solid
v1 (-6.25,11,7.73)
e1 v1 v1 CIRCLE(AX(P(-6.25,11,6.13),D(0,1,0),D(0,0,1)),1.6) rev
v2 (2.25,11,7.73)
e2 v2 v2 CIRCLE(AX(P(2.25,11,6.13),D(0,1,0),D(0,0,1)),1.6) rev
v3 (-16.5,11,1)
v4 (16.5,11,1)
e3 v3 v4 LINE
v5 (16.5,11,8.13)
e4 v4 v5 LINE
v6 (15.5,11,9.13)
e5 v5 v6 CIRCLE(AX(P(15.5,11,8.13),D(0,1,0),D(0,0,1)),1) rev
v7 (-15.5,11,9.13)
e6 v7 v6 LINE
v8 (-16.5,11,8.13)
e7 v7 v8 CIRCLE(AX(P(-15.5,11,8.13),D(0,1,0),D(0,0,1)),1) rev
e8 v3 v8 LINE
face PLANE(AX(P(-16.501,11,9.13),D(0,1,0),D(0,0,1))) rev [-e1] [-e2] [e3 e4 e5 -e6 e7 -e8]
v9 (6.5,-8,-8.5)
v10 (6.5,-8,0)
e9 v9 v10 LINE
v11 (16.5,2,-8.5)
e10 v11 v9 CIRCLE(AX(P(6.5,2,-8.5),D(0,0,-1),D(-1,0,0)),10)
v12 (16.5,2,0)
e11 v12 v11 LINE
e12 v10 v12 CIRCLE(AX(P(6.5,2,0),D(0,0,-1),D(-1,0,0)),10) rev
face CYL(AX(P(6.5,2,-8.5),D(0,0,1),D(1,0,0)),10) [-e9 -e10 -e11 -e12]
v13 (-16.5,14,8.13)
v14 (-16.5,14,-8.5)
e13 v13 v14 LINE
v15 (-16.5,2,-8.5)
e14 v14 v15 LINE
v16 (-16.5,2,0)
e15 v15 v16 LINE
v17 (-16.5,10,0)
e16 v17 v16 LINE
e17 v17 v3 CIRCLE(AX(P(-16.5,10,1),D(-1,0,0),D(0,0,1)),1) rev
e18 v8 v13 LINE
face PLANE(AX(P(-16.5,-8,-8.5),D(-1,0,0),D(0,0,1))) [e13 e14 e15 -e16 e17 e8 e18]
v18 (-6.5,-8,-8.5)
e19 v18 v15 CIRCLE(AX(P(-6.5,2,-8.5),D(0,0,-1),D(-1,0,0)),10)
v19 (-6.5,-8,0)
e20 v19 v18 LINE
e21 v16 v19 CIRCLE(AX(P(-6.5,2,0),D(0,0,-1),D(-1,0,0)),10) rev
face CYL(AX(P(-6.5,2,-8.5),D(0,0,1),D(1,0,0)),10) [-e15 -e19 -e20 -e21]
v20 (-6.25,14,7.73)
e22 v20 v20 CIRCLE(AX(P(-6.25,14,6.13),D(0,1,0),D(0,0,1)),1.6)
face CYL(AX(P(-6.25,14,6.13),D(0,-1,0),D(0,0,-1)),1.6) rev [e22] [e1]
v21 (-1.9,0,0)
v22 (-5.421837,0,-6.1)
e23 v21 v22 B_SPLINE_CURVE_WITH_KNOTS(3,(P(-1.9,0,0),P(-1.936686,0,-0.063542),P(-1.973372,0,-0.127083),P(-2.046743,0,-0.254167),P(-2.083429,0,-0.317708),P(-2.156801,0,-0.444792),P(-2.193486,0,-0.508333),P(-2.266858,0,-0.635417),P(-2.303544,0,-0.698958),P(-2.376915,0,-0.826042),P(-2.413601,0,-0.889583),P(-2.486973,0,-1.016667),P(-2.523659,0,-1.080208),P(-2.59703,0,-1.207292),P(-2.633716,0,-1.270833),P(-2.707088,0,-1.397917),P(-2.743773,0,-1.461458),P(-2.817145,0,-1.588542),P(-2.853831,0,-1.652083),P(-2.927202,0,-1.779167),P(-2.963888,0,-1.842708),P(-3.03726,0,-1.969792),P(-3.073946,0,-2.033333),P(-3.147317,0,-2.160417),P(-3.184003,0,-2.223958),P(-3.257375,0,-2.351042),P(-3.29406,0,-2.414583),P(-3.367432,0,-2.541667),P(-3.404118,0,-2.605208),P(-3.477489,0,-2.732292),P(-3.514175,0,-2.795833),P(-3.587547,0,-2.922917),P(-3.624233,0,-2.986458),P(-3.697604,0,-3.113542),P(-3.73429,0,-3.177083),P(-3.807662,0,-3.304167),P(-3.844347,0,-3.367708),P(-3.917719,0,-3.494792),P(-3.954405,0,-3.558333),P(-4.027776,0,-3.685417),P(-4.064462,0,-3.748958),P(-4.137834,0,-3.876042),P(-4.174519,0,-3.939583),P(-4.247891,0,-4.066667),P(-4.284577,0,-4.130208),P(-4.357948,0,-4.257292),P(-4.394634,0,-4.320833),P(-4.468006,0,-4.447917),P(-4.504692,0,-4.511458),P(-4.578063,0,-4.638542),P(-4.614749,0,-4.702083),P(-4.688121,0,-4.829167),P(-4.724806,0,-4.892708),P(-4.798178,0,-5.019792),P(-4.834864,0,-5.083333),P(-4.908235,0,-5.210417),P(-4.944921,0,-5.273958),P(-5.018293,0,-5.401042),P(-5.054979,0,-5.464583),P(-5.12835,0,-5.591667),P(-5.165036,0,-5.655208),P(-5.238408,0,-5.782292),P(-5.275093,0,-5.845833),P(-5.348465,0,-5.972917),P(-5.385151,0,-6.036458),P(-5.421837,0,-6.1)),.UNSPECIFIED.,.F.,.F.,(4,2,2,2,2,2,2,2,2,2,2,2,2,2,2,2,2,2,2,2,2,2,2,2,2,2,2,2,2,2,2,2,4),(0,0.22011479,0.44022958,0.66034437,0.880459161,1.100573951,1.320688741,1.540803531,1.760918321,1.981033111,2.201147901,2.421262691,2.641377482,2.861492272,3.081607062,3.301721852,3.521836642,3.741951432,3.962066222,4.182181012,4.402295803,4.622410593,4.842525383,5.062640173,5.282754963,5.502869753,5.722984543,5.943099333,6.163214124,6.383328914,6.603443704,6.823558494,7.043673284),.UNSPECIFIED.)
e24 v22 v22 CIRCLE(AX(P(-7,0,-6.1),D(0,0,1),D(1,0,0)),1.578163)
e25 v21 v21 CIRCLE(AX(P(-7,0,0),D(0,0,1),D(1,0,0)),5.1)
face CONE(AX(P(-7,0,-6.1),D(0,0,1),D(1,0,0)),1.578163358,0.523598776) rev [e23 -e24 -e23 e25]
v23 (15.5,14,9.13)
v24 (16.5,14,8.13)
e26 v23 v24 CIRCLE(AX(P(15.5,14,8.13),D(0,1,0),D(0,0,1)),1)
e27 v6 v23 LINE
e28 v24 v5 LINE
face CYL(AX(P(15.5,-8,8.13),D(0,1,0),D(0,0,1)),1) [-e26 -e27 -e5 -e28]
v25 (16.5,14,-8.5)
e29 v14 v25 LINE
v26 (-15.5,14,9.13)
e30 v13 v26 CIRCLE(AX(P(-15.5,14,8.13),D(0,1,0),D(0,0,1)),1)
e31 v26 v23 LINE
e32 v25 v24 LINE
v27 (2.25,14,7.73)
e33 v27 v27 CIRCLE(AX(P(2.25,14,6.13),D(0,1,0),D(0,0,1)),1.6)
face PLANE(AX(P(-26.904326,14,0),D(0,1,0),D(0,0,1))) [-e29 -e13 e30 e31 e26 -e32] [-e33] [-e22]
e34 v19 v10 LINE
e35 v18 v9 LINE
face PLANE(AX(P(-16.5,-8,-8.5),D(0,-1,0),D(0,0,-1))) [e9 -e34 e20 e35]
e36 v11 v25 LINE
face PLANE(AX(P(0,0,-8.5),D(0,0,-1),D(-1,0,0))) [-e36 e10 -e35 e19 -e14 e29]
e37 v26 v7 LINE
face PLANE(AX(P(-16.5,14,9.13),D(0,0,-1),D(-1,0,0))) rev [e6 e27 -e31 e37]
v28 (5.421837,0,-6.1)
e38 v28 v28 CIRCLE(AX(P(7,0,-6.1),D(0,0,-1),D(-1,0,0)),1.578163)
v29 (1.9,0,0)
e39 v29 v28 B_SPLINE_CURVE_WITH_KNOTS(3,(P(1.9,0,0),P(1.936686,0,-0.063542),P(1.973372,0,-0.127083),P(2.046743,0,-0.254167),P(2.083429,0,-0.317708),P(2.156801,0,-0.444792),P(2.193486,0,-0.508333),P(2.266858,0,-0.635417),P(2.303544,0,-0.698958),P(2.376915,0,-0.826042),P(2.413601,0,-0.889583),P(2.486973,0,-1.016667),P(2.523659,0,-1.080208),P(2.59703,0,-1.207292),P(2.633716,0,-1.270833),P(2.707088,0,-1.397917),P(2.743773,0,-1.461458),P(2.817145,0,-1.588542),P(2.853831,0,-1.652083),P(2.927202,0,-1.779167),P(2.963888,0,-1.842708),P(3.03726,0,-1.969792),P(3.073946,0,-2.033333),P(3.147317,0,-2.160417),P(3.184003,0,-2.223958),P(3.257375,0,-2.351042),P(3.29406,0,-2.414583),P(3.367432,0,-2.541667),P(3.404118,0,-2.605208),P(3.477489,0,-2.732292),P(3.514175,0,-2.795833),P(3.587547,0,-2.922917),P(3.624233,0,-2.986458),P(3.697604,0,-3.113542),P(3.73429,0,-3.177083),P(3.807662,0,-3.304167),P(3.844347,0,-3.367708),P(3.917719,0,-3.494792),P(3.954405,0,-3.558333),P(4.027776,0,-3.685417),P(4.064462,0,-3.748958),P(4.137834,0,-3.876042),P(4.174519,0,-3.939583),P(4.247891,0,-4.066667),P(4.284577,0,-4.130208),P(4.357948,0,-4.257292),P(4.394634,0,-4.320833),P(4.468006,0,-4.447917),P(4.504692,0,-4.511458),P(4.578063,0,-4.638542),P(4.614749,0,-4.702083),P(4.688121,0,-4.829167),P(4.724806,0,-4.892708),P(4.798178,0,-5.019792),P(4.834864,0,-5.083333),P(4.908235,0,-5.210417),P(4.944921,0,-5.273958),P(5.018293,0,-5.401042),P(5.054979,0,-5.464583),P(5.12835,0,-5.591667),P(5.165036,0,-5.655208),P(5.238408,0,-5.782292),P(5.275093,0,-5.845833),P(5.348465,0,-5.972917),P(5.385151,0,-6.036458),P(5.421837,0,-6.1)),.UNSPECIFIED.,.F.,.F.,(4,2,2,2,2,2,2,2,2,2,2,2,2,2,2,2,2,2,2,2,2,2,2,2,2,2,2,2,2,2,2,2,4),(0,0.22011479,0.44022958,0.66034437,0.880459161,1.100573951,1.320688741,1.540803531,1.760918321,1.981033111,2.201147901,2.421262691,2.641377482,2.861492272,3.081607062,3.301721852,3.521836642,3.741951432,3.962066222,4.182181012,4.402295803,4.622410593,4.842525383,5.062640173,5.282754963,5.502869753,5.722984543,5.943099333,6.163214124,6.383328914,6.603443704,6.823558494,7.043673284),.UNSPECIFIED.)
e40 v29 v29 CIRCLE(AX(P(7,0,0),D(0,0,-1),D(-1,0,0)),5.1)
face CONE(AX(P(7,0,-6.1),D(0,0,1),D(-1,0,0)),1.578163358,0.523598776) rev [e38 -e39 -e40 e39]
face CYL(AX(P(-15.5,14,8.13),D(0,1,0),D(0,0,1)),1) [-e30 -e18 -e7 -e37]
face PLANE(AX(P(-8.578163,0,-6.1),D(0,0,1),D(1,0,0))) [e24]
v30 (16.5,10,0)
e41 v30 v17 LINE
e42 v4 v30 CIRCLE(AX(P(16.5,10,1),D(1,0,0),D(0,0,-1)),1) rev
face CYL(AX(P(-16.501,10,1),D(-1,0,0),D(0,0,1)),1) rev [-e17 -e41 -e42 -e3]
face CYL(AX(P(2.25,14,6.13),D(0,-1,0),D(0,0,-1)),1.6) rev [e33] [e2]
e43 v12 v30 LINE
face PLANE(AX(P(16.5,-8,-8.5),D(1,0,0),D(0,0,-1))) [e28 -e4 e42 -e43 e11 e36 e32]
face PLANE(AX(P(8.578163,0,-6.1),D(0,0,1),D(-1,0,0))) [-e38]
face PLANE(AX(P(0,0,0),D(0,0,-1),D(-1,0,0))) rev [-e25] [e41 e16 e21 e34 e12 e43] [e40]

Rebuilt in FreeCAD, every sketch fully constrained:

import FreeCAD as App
import Part
import Sketcher
from FreeCAD import Vector
Q = App.Units.Quantity


def edges_at(feature, points):
    """Names of the edges that pass closest to the given points."""
    edges = feature.Shape.Edges
    near = lambda p: min(range(len(edges)), key=lambda i: edges[i].distToShape(Part.Vertex(*p))[0])
    return sorted({f"Edge{near(p) + 1}" for p in points})

doc = App.newDocument("Part")
body = doc.addObject("PartDesign::Body", "Body")

sketch1 = body.newObject("Sketcher::SketchObject", "Sketch")
sketch1.AttachmentSupport = (doc.getObject("XY_Plane"), [""])
sketch1.MapMode = "FlatFace"
sketch1.addGeometry([
    Part.LineSegment(Vector(-16, 8, 0), Vector(-16, -8, 0)),
    Part.LineSegment(Vector(-16, -8, 0), Vector(16, -8, 0)),
    Part.LineSegment(Vector(16, -8, 0), Vector(16, 8, 0)),
    Part.LineSegment(Vector(16, 8, 0), Vector(-16, 8, 0)),
], False)
sketch1.addConstraint([
    Sketcher.Constraint("Coincident", 0, 2, 1, 1),
    Sketcher.Constraint("Coincident", 1, 2, 2, 1),
    Sketcher.Constraint("Coincident", 2, 2, 3, 1),
    Sketcher.Constraint("Coincident", 3, 2, 0, 1),
    Sketcher.Constraint("Vertical", 0),
    Sketcher.Constraint("Horizontal", 1),
    Sketcher.Constraint("Vertical", 2),
    Sketcher.Constraint("Horizontal", 3),
    Sketcher.Constraint("Symmetric", 0, 2, 2, 2, -1, 1),
    Sketcher.Constraint("DistanceX", 1, 1, 1, 2, Q("33 mm")),
    Sketcher.Constraint("DistanceY", 0, 2, 0, 1, Q("16 mm")),
])
pad1 = body.newObject("PartDesign::Pad", "Pad")
pad1.Profile = sketch1
pad1.Length = 8.5
pad1.Reversed = True

sketch2 = body.newObject("Sketcher::SketchObject", "Sketch001")
sketch2.AttachmentSupport = (doc.getObject("XZ_Plane"), [""])
sketch2.MapMode = "FlatFace"
sketch2.addGeometry([
    Part.LineSegment(Vector(-7, 0, 0), Vector(-7, -6.1, 0)),
    Part.LineSegment(Vector(-7, -6.1, 0), Vector(-8.6, -6.1, 0)),
    Part.LineSegment(Vector(-8.6, -6.1, 0), Vector(-12.1, 0, 0)),
    Part.LineSegment(Vector(-12.1, 0, 0), Vector(-7, 0, 0)),
], False)
sketch2.addGeometry(Part.LineSegment(Vector(-7, 0, 0), Vector(-7, -6.1, 0)), True)
sketch2.addConstraint([
    Sketcher.Constraint("Coincident", 0, 2, 1, 1),
    Sketcher.Constraint("Coincident", 1, 2, 2, 1),
    Sketcher.Constraint("Coincident", 2, 2, 3, 1),
    Sketcher.Constraint("Coincident", 3, 2, 0, 1),
    Sketcher.Constraint("Vertical", 0),
    Sketcher.Constraint("Horizontal", 1),
    Sketcher.Constraint("Horizontal", 3),
    Sketcher.Constraint("Vertical", 4),
    Sketcher.Constraint("Coincident", 4, 1, 3, 2),
    Sketcher.Constraint("PointOnObject", 2, 2, -1),
    Sketcher.Constraint("Horizontal", 1, 2, 4, 2),
    Sketcher.Constraint("Angle", 2, Q("120 deg")),
    Sketcher.Constraint("DistanceX", 3, 1, 3, 2, Q("5.1 mm")),
    Sketcher.Constraint("DistanceY", 0, 2, 0, 1, Q("6.1 mm")),
    Sketcher.Constraint("DistanceX", 0, 2, -1, 1, Q("7 mm")),
])
groove = body.newObject("PartDesign::Groove", "Groove")
groove.Profile = sketch2
groove.ReferenceAxis = (sketch2, ["Axis0"])
groove.Angle = 360
doc.recompute()

mirrored = body.newObject("PartDesign::Mirrored", "Mirrored")
mirrored.Originals = [groove]
mirrored.MirrorPlane = (doc.getObject("YZ_Plane"), [""])
body.Tip = mirrored
doc.recompute()

fillet = body.newObject("PartDesign::Fillet", "Fillet")
fillet.Base = (mirrored, edges_at(mirrored, [(16.5, -8, -4.25), (-16.5, -8, -4.25)]))
fillet.Radius = 10
body2 = doc.addObject("PartDesign::Body", "Body001")

sketch3 = body2.newObject("Sketcher::SketchObject", "Sketch002")
sketch3.AttachmentSupport = (doc.getObject("XZ_Plane001"), [""])
sketch3.MapMode = "FlatFace"
sketch3.AttachmentOffset = App.Placement(Vector(0, 0, -8), App.Rotation())
sketch3.addGeometry([
    Part.LineSegment(Vector(16.5, 0, 0), Vector(-16.5, 0, 0)),
    Part.LineSegment(Vector(-16.5, 0, 0), Vector(-16.5, 9.1, 0)),
    Part.LineSegment(Vector(-16.5, 9.1, 0), Vector(16.5, 9.1, 0)),
    Part.LineSegment(Vector(16.5, 9.1, 0), Vector(16.5, 0, 0)),
    Part.Circle(Vector(2.2, 6.1, 0), Vector(0, 0, 1), 1.6),
    Part.Circle(Vector(-6.2, 6.1, 0), Vector(0, 0, 1), 1.6),
], False)
sketch3.addConstraint([
    Sketcher.Constraint("Coincident", 0, 2, 1, 1),
    Sketcher.Constraint("Coincident", 1, 2, 2, 1),
    Sketcher.Constraint("Coincident", 2, 2, 3, 1),
    Sketcher.Constraint("Coincident", 3, 2, 0, 1),
    Sketcher.Constraint("Horizontal", 0),
    Sketcher.Constraint("Vertical", 1),
    Sketcher.Constraint("Horizontal", 2),
    Sketcher.Constraint("Vertical", 3),
    Sketcher.Constraint("Equal", 4, 5),
    Sketcher.Constraint("Symmetric", 0, 2, 3, 2, -1, 1),
    Sketcher.Constraint("Horizontal", 4, 3, 5, 3),
    Sketcher.Constraint("Diameter", 4, Q("3.2 mm")),
    Sketcher.Constraint("DistanceX", 0, 2, 0, 1, Q("33 mm")),
    Sketcher.Constraint("DistanceY", 5, 3, 1, 2, Q("3 mm")),
    Sketcher.Constraint("DistanceY", 1, 1, 1, 2, Q("9.13 mm")),
    Sketcher.Constraint("DistanceX", 5, 3, 4, 3, Q("8.5 mm")),
    Sketcher.Constraint("DistanceX", -1, 1, 4, 3, Q("2.25 mm")),
])
pad2 = body2.newObject("PartDesign::Pad", "Pad001")
pad2.Profile = sketch3
pad2.Length = 6
pad2.Reversed = True
body.AllowCompound = True
doc.recompute()

boolean = body.newObject("PartDesign::Boolean", "Boolean")
boolean.Type = "Fuse"
boolean.addObjects([body2])

sketch4 = body.newObject("Sketcher::SketchObject", "Sketch003")
sketch4.AttachmentSupport = (doc.getObject("YZ_Plane"), [""])
sketch4.MapMode = "FlatFace"
sketch4.AttachmentOffset = App.Placement(Vector(0, 0, 16.5), App.Rotation())
sketch4.addGeometry([
    Part.LineSegment(Vector(14, 0, 0), Vector(8, 0, 0)),
    Part.LineSegment(Vector(8, 0, 0), Vector(8, -8, 0)),
    Part.LineSegment(Vector(8, -8, 0), Vector(14, -8, 0)),
    Part.LineSegment(Vector(14, -8, 0), Vector(14, 0, 0)),
], False)
sketch4.addConstraint([
    Sketcher.Constraint("Coincident", 0, 2, 1, 1),
    Sketcher.Constraint("Coincident", 1, 2, 2, 1),
    Sketcher.Constraint("Coincident", 2, 2, 3, 1),
    Sketcher.Constraint("Coincident", 3, 2, 0, 1),
    Sketcher.Constraint("Horizontal", 0),
    Sketcher.Constraint("Vertical", 1),
    Sketcher.Constraint("Horizontal", 2),
    Sketcher.Constraint("Vertical", 3),
    Sketcher.Constraint("PointOnObject", 0, 2, -1),
    Sketcher.Constraint("DistanceX", 0, 2, 0, 1, Q("6 mm")),
    Sketcher.Constraint("DistanceY", 1, 2, 1, 1, Q("8.5 mm")),
    Sketcher.Constraint("DistanceX", -1, 1, 0, 2, Q("8 mm")),
])
pad3 = body.newObject("PartDesign::Pad", "Pad002")
pad3.Profile = sketch4
pad3.Length = 33
pad3.Reversed = True

sketch5 = body.newObject("Sketcher::SketchObject", "Sketch004")
sketch5.AttachmentSupport = (doc.getObject("YZ_Plane"), [""])
sketch5.MapMode = "FlatFace"
sketch5.AttachmentOffset = App.Placement(Vector(0, 0, 16.5), App.Rotation())
sketch5.addGeometry([
    Part.LineSegment(Vector(11, 9.1, 0), Vector(8, 9.1, 0)),
    Part.LineSegment(Vector(8, 9.1, 0), Vector(8, 0, 0)),
    Part.LineSegment(Vector(8, 0, 0), Vector(11, 0, 0)),
    Part.LineSegment(Vector(11, 0, 0), Vector(11, 9.1, 0)),
], False)
sketch5.addConstraint([
    Sketcher.Constraint("Coincident", 0, 2, 1, 1),
    Sketcher.Constraint("Coincident", 1, 2, 2, 1),
    Sketcher.Constraint("Coincident", 2, 2, 3, 1),
    Sketcher.Constraint("Coincident", 3, 2, 0, 1),
    Sketcher.Constraint("Horizontal", 0),
    Sketcher.Constraint("Vertical", 1),
    Sketcher.Constraint("Horizontal", 2),
    Sketcher.Constraint("Vertical", 3),
    Sketcher.Constraint("PointOnObject", 1, 2, -1),
    Sketcher.Constraint("DistanceX", 0, 2, 0, 1, Q("3 mm")),
    Sketcher.Constraint("DistanceX", -1, 1, 0, 2, Q("8 mm")),
    Sketcher.Constraint("DistanceY", 1, 2, 1, 1, Q("9.13 mm")),
])
pocket1 = body.newObject("PartDesign::Pocket", "Pocket")
pocket1.Profile = sketch5
pocket1.Length = 33
doc.recompute()

fillet2 = body.newObject("PartDesign::Fillet", "Fillet001")
fillet2.Base = (pocket1, edges_at(pocket1, [(-16.5, 12.5, 9.13), (16.5, 12.5, 9.13), (0, 11, 0)]))
fillet2.Radius = 1

doc.recompute()
